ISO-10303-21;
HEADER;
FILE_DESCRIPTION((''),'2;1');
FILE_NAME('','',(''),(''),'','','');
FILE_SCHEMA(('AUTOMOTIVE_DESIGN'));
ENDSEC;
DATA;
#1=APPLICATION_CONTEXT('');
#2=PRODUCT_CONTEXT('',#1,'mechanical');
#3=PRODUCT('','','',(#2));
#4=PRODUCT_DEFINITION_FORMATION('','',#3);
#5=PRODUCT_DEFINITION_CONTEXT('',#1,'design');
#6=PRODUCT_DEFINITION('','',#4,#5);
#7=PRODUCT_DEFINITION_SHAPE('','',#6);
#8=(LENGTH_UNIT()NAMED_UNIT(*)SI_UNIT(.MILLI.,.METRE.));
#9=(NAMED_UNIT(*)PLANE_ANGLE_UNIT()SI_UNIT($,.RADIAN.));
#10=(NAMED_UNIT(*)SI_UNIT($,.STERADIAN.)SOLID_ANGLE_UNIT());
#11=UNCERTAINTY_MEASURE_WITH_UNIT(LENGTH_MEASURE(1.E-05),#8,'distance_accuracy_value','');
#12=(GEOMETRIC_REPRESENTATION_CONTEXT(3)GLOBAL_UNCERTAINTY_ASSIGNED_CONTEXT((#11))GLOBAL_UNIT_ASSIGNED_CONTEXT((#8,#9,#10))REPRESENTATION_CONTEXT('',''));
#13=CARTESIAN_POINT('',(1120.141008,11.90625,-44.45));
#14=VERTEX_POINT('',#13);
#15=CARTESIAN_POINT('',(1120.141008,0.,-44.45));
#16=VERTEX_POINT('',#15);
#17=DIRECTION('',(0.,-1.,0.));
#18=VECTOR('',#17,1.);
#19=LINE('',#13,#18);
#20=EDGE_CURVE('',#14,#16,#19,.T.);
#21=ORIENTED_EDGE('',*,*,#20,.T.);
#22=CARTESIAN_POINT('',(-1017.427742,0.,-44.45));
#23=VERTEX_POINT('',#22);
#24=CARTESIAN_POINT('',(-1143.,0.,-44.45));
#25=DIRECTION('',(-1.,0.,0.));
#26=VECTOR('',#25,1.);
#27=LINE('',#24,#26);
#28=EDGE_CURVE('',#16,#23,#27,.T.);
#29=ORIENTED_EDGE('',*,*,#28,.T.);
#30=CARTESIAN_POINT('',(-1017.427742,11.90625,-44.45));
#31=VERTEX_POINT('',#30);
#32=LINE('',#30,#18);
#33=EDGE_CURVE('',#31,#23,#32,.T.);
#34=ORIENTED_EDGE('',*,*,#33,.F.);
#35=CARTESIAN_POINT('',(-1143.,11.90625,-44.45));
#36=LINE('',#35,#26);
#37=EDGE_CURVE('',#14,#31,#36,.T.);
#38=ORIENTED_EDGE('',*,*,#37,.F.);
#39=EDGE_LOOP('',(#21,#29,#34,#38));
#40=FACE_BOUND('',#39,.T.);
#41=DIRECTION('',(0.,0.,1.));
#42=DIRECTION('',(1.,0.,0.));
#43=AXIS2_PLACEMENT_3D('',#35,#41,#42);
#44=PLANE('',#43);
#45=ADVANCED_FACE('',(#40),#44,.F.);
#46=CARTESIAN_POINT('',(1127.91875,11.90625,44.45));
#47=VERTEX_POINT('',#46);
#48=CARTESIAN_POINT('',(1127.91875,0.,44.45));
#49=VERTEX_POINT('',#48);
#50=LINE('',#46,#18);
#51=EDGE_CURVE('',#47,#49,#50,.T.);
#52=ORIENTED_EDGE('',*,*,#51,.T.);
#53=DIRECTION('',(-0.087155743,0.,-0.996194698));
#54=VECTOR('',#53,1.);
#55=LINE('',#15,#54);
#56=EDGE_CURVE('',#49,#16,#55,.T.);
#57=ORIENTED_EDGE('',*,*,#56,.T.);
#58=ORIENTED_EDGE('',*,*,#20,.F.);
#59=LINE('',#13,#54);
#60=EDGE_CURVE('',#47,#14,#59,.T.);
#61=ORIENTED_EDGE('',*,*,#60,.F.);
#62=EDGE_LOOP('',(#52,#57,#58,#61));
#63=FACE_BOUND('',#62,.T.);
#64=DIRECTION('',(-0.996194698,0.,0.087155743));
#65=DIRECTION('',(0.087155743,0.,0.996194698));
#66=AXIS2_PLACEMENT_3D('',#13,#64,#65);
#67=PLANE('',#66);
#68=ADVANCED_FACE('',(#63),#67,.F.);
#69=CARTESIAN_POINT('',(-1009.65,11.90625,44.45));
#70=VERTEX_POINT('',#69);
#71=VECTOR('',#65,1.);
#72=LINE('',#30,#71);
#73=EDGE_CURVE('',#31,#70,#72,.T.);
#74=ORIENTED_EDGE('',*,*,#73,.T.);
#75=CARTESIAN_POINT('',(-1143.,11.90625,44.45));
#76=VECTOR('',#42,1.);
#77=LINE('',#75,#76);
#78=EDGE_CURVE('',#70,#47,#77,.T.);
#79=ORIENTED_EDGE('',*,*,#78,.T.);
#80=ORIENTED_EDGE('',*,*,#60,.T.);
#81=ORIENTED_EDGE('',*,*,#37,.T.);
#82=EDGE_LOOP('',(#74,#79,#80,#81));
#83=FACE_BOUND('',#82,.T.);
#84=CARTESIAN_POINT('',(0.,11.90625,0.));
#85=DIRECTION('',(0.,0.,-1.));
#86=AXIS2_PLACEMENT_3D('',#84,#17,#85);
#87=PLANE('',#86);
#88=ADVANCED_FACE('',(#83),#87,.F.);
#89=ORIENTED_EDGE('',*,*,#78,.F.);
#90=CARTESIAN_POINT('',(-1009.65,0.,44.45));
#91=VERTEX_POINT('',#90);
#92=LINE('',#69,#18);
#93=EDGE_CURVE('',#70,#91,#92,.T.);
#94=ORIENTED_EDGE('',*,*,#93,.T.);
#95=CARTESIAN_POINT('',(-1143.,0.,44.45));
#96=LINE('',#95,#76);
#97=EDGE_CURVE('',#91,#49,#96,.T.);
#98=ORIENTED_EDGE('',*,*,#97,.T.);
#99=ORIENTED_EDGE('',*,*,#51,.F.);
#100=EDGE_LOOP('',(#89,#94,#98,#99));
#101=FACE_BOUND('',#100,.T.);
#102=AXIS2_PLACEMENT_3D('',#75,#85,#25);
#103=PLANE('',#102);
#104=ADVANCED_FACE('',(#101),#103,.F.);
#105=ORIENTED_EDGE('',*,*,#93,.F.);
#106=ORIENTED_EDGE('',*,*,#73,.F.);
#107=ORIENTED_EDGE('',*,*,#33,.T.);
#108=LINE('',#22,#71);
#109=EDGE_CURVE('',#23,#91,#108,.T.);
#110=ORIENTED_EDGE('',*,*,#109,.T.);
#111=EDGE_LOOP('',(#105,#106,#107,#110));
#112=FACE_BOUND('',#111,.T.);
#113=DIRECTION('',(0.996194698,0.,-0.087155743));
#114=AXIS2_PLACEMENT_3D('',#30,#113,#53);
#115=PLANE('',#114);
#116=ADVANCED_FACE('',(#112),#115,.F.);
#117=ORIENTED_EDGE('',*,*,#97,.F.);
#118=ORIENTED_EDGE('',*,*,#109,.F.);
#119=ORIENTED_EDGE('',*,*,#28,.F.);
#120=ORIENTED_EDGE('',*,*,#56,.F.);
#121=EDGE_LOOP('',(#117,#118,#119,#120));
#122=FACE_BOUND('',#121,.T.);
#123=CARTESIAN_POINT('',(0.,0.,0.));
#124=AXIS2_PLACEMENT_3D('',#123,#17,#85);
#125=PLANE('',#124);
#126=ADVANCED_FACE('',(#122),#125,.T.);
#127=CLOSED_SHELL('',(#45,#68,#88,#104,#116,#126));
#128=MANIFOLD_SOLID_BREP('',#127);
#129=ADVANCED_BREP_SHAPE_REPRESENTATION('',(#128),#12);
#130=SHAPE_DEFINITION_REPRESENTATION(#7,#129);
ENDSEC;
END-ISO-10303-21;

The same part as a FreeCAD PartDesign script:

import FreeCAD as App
import Part
import Sketcher

V = App.Vector
Q = App.Units.Quantity


def add_polygon(sketch, points):
    """Adds a closed chain of lines whose ends are joined by coincident constraints."""
    first, n = sketch.GeometryCount, len(points)
    for a, b in zip(points, points[1:] + points[:1]):
        sketch.addGeometry(Part.LineSegment(App.Vector(*a, 0), App.Vector(*b, 0)), False)
    for i in range(n):
        sketch.addConstraint(Sketcher.Constraint("Coincident", first + i, 2, first + (i + 1) % n, 1))

doc = App.newDocument("Part")
body = doc.addObject("PartDesign::Body", "Body")

sketch1 = body.newObject("Sketcher::SketchObject", "Sketch")
sketch1.AttachmentSupport = (doc.getObject("XZ_Plane"), [""])
sketch1.MapMode = "FlatFace"
add_polygon(sketch1, [(-1143, -44), (-1143, 44), (1143, 44), (1143, -44)])
sketch1.addConstraint([
    Sketcher.Constraint("Vertical", 0),
    Sketcher.Constraint("Horizontal", 1),
    Sketcher.Constraint("Vertical", 2),
    Sketcher.Constraint("Horizontal", 3),
    Sketcher.Constraint("Symmetric", 0, 2, 2, 2, -1, 1),
    Sketcher.Constraint("DistanceX", 1, 1, 1, 2, Q("90 in")),
    Sketcher.Constraint("DistanceY", 0, 1, 0, 2, Q("3.5 in")),
])
pad1 = body.newObject("PartDesign::Pad", "Pad")
pad1.Profile = sketch1
pad1.Length = Q("0.46875 in")
pad1.Reversed = True

sketch2 = body.newObject("Sketcher::SketchObject", "Sketch001")
sketch2.AttachmentSupport = (doc.getObject("XZ_Plane"), [""])
sketch2.MapMode = "FlatFace"
add_polygon(sketch2, [(-1143, 44), (-1143, -44), (-1017, -44), (-1010, 44)])
add_polygon(sketch2, [(1128, 44), (1120, -44), (1143, -44), (1143, 44)])
sketch2.addConstraint([
    Sketcher.Constraint("Vertical", 0),
    Sketcher.Constraint("Horizontal", 1),
    Sketcher.Constraint("Horizontal", 3),
    Sketcher.Constraint("Horizontal", 5),
    Sketcher.Constraint("Vertical", 6),
    Sketcher.Constraint("Horizontal", 7),
    Sketcher.Constraint("Symmetric", 3, 2, 5, 2, -1, 1),
    Sketcher.Constraint("Parallel", 2, 4),
    Sketcher.Constraint("Horizontal", 1, 2, 4, 2),
    Sketcher.Constraint("Horizontal", 3, 2, 6, 2),
    Sketcher.Constraint("DistanceY", 0, 2, 0, 1, Q("3.5 in")),
    Sketcher.Constraint("DistanceX", 0, 2, -1, 1, Q("45 in")),
    Sketcher.Constraint("Angle", 2, Q("85 deg")),
    Sketcher.Constraint("DistanceX", 3, 2, 3, 1, Q("5.25 in")),
    Sketcher.Constraint("DistanceX", 7, 2, 7, 1, Q("0.59375 in")),
])
pocket1 = body.newObject("PartDesign::Pocket", "Pocket")
pocket1.Profile = sketch2
pocket1.Type = "ThroughAll"

doc.recompute()
